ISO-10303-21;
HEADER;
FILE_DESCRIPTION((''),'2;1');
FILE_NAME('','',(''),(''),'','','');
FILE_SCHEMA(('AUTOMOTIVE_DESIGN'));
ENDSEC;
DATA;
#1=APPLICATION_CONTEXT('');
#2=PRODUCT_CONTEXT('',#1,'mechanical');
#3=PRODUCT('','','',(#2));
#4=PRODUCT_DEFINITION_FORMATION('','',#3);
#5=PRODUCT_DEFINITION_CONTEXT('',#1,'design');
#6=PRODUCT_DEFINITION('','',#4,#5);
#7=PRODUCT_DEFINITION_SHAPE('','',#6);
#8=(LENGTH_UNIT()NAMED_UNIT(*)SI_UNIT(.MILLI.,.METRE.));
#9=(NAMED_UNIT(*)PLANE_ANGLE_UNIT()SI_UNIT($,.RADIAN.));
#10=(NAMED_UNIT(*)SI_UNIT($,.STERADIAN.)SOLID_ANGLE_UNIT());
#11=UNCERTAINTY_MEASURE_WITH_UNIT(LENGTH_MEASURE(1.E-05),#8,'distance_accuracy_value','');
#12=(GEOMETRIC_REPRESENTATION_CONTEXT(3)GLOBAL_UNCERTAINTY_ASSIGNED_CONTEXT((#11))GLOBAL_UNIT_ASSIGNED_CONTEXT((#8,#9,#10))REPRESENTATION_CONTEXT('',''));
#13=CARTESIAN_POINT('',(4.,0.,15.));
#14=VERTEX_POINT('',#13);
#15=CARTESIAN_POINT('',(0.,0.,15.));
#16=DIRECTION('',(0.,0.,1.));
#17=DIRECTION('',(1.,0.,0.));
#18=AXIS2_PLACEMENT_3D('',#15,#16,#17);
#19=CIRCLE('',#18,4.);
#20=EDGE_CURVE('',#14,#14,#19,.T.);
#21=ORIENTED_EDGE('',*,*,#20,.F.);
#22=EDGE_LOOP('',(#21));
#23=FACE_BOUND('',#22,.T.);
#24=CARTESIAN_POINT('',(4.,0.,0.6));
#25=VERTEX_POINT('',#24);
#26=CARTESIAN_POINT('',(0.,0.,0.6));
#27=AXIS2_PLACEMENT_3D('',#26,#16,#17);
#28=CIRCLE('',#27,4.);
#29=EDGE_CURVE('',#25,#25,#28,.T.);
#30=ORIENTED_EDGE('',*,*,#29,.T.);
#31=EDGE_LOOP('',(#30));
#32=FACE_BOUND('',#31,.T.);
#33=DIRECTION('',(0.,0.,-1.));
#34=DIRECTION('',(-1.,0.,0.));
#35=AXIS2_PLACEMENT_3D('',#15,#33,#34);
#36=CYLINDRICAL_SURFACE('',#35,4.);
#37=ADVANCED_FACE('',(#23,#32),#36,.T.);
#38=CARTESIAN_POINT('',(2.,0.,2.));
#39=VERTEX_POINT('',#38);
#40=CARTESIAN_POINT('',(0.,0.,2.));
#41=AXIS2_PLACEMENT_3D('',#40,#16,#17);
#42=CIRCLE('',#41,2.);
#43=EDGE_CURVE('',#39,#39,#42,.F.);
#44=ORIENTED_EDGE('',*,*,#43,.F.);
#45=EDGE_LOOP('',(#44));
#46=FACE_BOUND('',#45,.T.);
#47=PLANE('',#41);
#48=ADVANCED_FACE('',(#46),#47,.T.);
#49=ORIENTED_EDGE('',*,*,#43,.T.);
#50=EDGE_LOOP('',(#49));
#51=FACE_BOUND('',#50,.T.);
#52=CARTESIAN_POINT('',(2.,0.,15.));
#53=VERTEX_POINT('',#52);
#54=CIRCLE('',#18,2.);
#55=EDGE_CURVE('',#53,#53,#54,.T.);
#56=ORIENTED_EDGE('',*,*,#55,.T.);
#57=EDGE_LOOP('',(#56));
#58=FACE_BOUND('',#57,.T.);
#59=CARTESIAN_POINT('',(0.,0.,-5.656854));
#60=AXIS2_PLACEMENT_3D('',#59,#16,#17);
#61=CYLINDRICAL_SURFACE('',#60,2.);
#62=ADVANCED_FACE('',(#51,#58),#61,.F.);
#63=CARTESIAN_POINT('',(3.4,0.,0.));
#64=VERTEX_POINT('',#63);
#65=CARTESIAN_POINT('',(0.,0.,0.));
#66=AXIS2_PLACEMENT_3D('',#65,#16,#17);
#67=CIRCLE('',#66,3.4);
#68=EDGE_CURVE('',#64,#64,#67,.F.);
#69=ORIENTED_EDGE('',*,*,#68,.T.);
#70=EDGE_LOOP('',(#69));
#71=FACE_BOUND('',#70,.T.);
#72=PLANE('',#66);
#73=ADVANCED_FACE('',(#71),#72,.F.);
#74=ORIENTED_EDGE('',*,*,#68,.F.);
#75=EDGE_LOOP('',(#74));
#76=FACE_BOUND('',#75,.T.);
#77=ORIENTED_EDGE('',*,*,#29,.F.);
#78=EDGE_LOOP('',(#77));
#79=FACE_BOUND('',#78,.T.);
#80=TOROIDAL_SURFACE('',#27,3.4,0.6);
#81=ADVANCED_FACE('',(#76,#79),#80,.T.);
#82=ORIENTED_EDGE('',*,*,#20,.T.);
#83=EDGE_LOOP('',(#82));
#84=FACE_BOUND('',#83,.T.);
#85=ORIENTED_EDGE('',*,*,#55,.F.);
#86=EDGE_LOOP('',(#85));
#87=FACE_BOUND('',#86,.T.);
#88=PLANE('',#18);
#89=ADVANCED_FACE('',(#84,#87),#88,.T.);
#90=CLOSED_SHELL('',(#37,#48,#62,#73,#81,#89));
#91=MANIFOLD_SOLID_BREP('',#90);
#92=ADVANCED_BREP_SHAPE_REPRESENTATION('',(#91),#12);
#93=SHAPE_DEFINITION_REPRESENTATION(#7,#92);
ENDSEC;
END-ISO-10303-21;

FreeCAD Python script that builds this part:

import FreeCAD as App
import Part
import Sketcher

V = App.Vector


def edges_at(feature, points):
    """Names of the edges that pass closest to the given points."""
    edges = feature.Shape.Edges
    near = lambda p: min(range(len(edges)), key=lambda i: edges[i].distToShape(Part.Vertex(*p))[0])
    return sorted({f"Edge{near(p) + 1}" for p in points})

doc = App.newDocument("Part")
body = doc.addObject("PartDesign::Body", "Body")

sketch1 = body.newObject("Sketcher::SketchObject", "Sketch")
sketch1.AttachmentSupport = (doc.getObject("XY_Plane"), [""])
sketch1.MapMode = "FlatFace"
sketch1.addGeometry(Part.Circle(V(0, 0, 0), V(0, 0, 1), 4), False)
sketch1.addConstraint(Sketcher.Constraint("Coincident", 0, 3, -1, 1))
sketch1.addConstraint(Sketcher.Constraint("Diameter", 0, 8.0))
pad1 = body.newObject("PartDesign::Pad", "Pad")
pad1.Profile = sketch1
pad1.Length = 15

sketch2 = body.newObject("Sketcher::SketchObject", "Sketch001")
sketch2.AttachmentSupport = (doc.getObject("XY_Plane"), [""])
sketch2.MapMode = "FlatFace"
sketch2.AttachmentOffset = App.Placement(V(0, 0, 15), App.Rotation())
sketch2.addGeometry(Part.Circle(V(0, 0, 0), V(0, 0, 1), 2), False)
sketch2.addConstraint(Sketcher.Constraint("Coincident", 0, 3, -1, 1))
sketch2.addConstraint(Sketcher.Constraint("Diameter", 0, 4.0))
pocket1 = body.newObject("PartDesign::Pocket", "Pocket")
pocket1.Profile = sketch2
pocket1.Length = 13
doc.recompute()

fillet = body.newObject("PartDesign::Fillet", "Fillet")
fillet.Base = (pocket1, edges_at(pocket1, [(-4, 0, 0)]))
fillet.Radius = 0.6

doc.recompute()
